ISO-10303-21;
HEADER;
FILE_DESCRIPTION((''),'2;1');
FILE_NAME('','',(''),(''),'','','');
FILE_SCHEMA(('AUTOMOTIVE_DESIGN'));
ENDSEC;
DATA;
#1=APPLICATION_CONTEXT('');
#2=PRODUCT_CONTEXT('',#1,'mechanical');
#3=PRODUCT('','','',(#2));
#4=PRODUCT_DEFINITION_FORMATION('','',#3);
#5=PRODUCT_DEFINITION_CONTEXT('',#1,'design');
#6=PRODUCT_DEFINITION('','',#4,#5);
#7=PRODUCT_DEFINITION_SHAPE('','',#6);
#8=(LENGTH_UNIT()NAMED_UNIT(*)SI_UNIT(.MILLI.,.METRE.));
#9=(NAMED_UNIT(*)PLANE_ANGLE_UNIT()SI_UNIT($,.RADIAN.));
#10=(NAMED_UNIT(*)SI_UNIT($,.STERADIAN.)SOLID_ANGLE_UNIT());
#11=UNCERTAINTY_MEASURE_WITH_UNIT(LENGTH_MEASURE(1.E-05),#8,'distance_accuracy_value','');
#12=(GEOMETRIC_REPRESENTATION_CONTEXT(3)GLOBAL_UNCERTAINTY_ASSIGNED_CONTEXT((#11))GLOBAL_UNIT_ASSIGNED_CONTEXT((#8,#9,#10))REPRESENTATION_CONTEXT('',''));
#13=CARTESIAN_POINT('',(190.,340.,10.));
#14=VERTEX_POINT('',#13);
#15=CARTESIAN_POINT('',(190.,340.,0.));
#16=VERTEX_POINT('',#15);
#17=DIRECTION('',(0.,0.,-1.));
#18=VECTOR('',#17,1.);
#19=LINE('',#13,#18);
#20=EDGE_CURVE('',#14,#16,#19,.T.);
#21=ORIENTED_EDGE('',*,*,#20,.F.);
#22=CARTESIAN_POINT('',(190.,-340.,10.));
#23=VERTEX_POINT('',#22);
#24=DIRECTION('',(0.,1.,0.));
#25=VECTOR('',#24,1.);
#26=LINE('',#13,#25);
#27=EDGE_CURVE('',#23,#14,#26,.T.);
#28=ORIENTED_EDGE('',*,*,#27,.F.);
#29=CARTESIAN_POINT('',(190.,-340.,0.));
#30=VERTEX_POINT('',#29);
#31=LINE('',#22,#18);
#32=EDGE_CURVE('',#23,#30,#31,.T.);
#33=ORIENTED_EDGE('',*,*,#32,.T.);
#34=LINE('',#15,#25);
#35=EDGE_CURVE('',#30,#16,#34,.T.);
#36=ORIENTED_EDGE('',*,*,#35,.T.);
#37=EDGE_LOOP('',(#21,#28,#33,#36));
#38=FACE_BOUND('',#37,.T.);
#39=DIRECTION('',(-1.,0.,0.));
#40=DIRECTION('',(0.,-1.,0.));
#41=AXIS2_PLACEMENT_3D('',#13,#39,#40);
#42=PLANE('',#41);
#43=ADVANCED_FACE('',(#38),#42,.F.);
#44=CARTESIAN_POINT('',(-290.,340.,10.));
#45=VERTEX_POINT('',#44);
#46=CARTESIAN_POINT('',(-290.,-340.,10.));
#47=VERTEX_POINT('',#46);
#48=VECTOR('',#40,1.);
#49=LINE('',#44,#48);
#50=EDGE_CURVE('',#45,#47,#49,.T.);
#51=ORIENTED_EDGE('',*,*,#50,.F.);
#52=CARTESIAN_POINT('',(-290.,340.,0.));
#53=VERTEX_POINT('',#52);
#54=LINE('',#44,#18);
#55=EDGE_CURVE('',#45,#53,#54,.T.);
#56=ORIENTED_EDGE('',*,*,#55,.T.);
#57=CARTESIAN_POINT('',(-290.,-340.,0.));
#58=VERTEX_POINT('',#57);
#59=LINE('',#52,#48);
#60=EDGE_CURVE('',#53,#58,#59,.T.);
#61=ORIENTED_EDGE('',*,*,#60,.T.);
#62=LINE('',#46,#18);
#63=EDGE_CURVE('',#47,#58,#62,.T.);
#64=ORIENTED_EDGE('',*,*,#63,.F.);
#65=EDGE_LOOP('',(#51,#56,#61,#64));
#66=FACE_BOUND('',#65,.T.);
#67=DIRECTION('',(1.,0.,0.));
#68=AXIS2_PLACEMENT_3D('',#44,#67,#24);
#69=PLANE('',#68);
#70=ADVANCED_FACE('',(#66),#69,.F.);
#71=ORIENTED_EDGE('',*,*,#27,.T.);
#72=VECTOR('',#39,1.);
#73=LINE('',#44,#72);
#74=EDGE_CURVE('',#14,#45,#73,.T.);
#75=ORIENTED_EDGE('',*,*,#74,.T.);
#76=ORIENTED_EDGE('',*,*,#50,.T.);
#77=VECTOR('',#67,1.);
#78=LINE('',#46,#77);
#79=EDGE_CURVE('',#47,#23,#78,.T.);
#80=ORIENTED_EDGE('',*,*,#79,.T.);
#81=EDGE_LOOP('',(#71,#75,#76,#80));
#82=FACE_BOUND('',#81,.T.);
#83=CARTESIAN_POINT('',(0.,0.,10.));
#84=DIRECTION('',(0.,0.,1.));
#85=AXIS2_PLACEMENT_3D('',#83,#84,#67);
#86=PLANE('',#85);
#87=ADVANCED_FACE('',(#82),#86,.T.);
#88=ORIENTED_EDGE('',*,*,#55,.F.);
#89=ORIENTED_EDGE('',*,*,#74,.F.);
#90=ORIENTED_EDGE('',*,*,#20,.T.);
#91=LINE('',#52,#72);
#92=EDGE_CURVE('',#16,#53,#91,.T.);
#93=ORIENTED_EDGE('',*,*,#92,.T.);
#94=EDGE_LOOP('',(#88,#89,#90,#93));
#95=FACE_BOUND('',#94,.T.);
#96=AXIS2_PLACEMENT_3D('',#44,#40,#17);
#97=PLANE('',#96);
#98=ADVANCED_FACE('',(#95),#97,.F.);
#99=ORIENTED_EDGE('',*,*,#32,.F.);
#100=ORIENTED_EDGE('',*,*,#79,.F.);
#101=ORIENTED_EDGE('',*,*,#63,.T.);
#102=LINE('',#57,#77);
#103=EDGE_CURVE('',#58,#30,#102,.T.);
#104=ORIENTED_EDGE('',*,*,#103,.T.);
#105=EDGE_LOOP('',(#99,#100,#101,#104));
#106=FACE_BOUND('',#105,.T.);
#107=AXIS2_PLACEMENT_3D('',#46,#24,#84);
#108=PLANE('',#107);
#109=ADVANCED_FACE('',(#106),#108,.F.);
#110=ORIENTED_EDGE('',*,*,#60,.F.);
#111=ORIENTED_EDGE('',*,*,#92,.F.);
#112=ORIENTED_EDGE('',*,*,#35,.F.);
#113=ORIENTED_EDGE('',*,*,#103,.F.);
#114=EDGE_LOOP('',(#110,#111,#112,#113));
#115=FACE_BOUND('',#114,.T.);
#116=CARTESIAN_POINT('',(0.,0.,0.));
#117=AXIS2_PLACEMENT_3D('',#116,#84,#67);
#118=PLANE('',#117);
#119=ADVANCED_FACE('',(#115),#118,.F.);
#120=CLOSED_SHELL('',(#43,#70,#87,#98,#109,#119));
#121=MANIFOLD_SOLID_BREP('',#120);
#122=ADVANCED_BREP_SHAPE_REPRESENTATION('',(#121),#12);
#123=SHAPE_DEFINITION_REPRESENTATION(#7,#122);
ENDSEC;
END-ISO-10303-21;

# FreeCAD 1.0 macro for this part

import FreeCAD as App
import Part
import Sketcher
from FreeCAD import Vector


def add_polygon(sketch, points):
    """Adds a closed chain of lines whose ends are joined by coincident constraints."""
    first, n = sketch.GeometryCount, len(points)
    for a, b in zip(points, points[1:] + points[:1]):
        sketch.addGeometry(Part.LineSegment(App.Vector(*a, 0), App.Vector(*b, 0)), False)
    for i in range(n):
        sketch.addConstraint(Sketcher.Constraint("Coincident", first + i, 2, first + (i + 1) % n, 1))

doc = App.newDocument("Part")
params = doc.addObject("Spreadsheet::Sheet", "Params")
for row, (alias, value) in enumerate([
    ("sketch1_width", "480 mm"),
    ("sketch1_height", "680 mm"),
    ("pad1_length", "10 mm"),
], start=1):
    params.set(f"A{row}", alias)
    params.set(f"B{row}", "=" + value)
    params.setAlias(f"B{row}", alias)

body = doc.addObject("PartDesign::Body", "Body")

# Sketch on XY plane
sketch1 = body.newObject("Sketcher::SketchObject", "Sketch")
sketch1.AttachmentSupport = (doc.getObject("XY_Plane"), [""])
sketch1.MapMode = "FlatFace"
add_polygon(sketch1, [(-290, 340), (-290, -340), (190, -340), (190, 340)])  # lines 0-3
sketch1.addConstraint([
    Sketcher.Constraint("Vertical", 0),
    Sketcher.Constraint("Horizontal", 1),
    Sketcher.Constraint("Vertical", 2),
    Sketcher.Constraint("Horizontal", 3),
    Sketcher.Constraint("DistanceX", 1, 1, 1, 2, 480.0),
    Sketcher.Constraint("DistanceY", 0, 2, 0, 1, 680.0),
    Sketcher.Constraint("DistanceX", 0, 2, -1, 1, 290.0),
    Sketcher.Constraint("DistanceY", 0, 2, -1, 1, 340.0),
])
sketch1.setExpression("Constraints[8]", "Params.sketch1_width")
sketch1.setExpression("Constraints[9]", "Params.sketch1_height")
pad1 = body.newObject("PartDesign::Pad", "Pad")
pad1.Profile = sketch1
pad1.setExpression("Length", "Params.pad1_length")

doc.recompute()
